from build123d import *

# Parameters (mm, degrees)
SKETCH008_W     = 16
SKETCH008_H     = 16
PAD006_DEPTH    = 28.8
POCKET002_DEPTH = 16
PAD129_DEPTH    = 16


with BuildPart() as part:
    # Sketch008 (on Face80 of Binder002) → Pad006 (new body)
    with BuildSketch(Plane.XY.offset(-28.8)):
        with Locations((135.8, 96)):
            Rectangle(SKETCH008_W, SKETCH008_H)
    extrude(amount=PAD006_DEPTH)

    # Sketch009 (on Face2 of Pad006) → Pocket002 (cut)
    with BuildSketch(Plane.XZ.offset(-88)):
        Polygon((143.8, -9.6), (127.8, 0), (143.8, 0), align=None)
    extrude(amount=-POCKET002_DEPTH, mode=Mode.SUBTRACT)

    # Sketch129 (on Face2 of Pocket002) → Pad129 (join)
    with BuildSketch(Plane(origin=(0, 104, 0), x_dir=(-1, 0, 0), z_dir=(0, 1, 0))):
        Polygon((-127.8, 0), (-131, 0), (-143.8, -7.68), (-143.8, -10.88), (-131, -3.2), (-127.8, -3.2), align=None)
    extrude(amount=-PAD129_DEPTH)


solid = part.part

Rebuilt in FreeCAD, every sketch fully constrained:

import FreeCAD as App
import Part
import Sketcher

doc = App.newDocument("Part")
body = doc.addObject("PartDesign::Body", "Body")

# Sketch on XY plane
sketch1 = body.newObject("Sketcher::SketchObject", "Sketch")
sketch1.AttachmentSupport = (doc.getObject("XY_Plane"), [""])
sketch1.MapMode = "FlatFace"
sketch1.AttachmentOffset = App.Placement(App.Vector(0, 0, -28.8), App.Rotation())
sketch1.addGeometry(Part.LineSegment(App.Vector(128, 104, 0), App.Vector(128, 88, 0)), False)
sketch1.addGeometry(Part.LineSegment(App.Vector(128, 88, 0), App.Vector(144, 88, 0)), False)
sketch1.addGeometry(Part.LineSegment(App.Vector(144, 88, 0), App.Vector(144, 104, 0)), False)
sketch1.addGeometry(Part.LineSegment(App.Vector(144, 104, 0), App.Vector(128, 104, 0)), False)
sketch1.addConstraint(Sketcher.Constraint("Coincident", 0, 2, 1, 1))
sketch1.addConstraint(Sketcher.Constraint("Coincident", 1, 2, 2, 1))
sketch1.addConstraint(Sketcher.Constraint("Coincident", 2, 2, 3, 1))
sketch1.addConstraint(Sketcher.Constraint("Coincident", 3, 2, 0, 1))
sketch1.addConstraint(Sketcher.Constraint("Vertical", 0))
sketch1.addConstraint(Sketcher.Constraint("Horizontal", 1))
sketch1.addConstraint(Sketcher.Constraint("Vertical", 2))
sketch1.addConstraint(Sketcher.Constraint("Horizontal", 3))
sketch1.addConstraint(Sketcher.Constraint("Equal", 3, 0))
sketch1.addConstraint(Sketcher.Constraint("DistanceX", 1, 1, 1, 2, 16.0))
sketch1.addConstraint(Sketcher.Constraint("DistanceY", -1, 1, 0, 2, 88.0))
sketch1.addConstraint(Sketcher.Constraint("DistanceX", -1, 1, 0, 2, 127.8))
pad1 = body.newObject("PartDesign::Pad", "Pad")
pad1.Profile = sketch1
pad1.Length = 28.8

# Sketch on XZ plane
sketch2 = body.newObject("Sketcher::SketchObject", "Sketch001")
sketch2.AttachmentSupport = (doc.getObject("XZ_Plane"), [""])
sketch2.MapMode = "FlatFace"
sketch2.AttachmentOffset = App.Placement(App.Vector(0, 0, -88), App.Rotation())
sketch2.addGeometry(Part.LineSegment(App.Vector(128, 0, 0), App.Vector(144, -10, 0)), False)
sketch2.addGeometry(Part.LineSegment(App.Vector(144, -10, 0), App.Vector(144, 0, 0)), False)
sketch2.addGeometry(Part.LineSegment(App.Vector(144, 0, 0), App.Vector(128, 0, 0)), False)
sketch2.addConstraint(Sketcher.Constraint("Coincident", 0, 2, 1, 1))
sketch2.addConstraint(Sketcher.Constraint("Coincident", 1, 2, 2, 1))
sketch2.addConstraint(Sketcher.Constraint("Coincident", 2, 2, 0, 1))
sketch2.addConstraint(Sketcher.Constraint("Vertical", 1))
sketch2.addConstraint(Sketcher.Constraint("Horizontal", 2))
sketch2.addConstraint(Sketcher.Constraint("PointOnObject", 1, 2, -1))
sketch2.addConstraint(Sketcher.Constraint("DistanceX", 2, 2, 2, 1, 16.0))
sketch2.addConstraint(Sketcher.Constraint("DistanceY", 1, 1, 1, 2, 9.6))
sketch2.addConstraint(Sketcher.Constraint("DistanceX", -1, 1, 0, 2, 143.8))
pocket1 = body.newObject("PartDesign::Pocket", "Pocket")
pocket1.Profile = sketch2
pocket1.Length = 16

# Sketch on XZ plane
sketch3 = body.newObject("Sketcher::SketchObject", "Sketch002")
sketch3.AttachmentSupport = (doc.getObject("XZ_Plane"), [""])
sketch3.MapMode = "FlatFace"
sketch3.AttachmentOffset = App.Placement(App.Vector(0, 0, -104), App.Rotation())
sketch3.addGeometry(Part.LineSegment(App.Vector(127.8, 0, 0), App.Vector(131, 0, 0)), False)
sketch3.addGeometry(Part.LineSegment(App.Vector(131, 0, 0), App.Vector(143.8, -7.7, 0)), False)
sketch3.addGeometry(Part.LineSegment(App.Vector(143.8, -7.7, 0), App.Vector(143.8, -10.9, 0)), False)
sketch3.addGeometry(Part.LineSegment(App.Vector(143.8, -10.9, 0), App.Vector(131, -3.2, 0)), False)
sketch3.addGeometry(Part.LineSegment(App.Vector(131, -3.2, 0), App.Vector(127.8, -3.2, 0)), False)
sketch3.addGeometry(Part.LineSegment(App.Vector(127.8, -3.2, 0), App.Vector(127.8, 0, 0)), False)
sketch3.addConstraint(Sketcher.Constraint("Coincident", 0, 2, 1, 1))
sketch3.addConstraint(Sketcher.Constraint("Coincident", 1, 2, 2, 1))
sketch3.addConstraint(Sketcher.Constraint("Coincident", 2, 2, 3, 1))
sketch3.addConstraint(Sketcher.Constraint("Coincident", 3, 2, 4, 1))
sketch3.addConstraint(Sketcher.Constraint("Coincident", 4, 2, 5, 1))
sketch3.addConstraint(Sketcher.Constraint("Coincident", 5, 2, 0, 1))
sketch3.addConstraint(Sketcher.Constraint("Horizontal", 0))
sketch3.addConstraint(Sketcher.Constraint("Vertical", 2))
sketch3.addConstraint(Sketcher.Constraint("Horizontal", 4))
sketch3.addConstraint(Sketcher.Constraint("Vertical", 5))
sketch3.addConstraint(Sketcher.Constraint("PointOnObject", 0, 2, -1))
sketch3.addConstraint(Sketcher.Constraint("Parallel", 1, 3))
sketch3.addConstraint(Sketcher.Constraint("Vertical", 0, 2, 3, 2))
sketch3.addConstraint(Sketcher.Constraint("Equal", 4, 2))
sketch3.addConstraint(Sketcher.Constraint("DistanceX", 0, 1, 0, 2, 3.2))
sketch3.addConstraint(Sketcher.Constraint("DistanceX", -1, 1, 0, 2, 131.0))
sketch3.addConstraint(Sketcher.Constraint("DistanceX", 4, 2, 1, 2, 16.0))
sketch3.addConstraint(Sketcher.Constraint("DistanceY", 1, 2, -1, 1, 7.68))
pad2 = body.newObject("PartDesign::Pad", "Pad001")
pad2.Profile = sketch3
pad2.Length = 16

doc.recompute()
